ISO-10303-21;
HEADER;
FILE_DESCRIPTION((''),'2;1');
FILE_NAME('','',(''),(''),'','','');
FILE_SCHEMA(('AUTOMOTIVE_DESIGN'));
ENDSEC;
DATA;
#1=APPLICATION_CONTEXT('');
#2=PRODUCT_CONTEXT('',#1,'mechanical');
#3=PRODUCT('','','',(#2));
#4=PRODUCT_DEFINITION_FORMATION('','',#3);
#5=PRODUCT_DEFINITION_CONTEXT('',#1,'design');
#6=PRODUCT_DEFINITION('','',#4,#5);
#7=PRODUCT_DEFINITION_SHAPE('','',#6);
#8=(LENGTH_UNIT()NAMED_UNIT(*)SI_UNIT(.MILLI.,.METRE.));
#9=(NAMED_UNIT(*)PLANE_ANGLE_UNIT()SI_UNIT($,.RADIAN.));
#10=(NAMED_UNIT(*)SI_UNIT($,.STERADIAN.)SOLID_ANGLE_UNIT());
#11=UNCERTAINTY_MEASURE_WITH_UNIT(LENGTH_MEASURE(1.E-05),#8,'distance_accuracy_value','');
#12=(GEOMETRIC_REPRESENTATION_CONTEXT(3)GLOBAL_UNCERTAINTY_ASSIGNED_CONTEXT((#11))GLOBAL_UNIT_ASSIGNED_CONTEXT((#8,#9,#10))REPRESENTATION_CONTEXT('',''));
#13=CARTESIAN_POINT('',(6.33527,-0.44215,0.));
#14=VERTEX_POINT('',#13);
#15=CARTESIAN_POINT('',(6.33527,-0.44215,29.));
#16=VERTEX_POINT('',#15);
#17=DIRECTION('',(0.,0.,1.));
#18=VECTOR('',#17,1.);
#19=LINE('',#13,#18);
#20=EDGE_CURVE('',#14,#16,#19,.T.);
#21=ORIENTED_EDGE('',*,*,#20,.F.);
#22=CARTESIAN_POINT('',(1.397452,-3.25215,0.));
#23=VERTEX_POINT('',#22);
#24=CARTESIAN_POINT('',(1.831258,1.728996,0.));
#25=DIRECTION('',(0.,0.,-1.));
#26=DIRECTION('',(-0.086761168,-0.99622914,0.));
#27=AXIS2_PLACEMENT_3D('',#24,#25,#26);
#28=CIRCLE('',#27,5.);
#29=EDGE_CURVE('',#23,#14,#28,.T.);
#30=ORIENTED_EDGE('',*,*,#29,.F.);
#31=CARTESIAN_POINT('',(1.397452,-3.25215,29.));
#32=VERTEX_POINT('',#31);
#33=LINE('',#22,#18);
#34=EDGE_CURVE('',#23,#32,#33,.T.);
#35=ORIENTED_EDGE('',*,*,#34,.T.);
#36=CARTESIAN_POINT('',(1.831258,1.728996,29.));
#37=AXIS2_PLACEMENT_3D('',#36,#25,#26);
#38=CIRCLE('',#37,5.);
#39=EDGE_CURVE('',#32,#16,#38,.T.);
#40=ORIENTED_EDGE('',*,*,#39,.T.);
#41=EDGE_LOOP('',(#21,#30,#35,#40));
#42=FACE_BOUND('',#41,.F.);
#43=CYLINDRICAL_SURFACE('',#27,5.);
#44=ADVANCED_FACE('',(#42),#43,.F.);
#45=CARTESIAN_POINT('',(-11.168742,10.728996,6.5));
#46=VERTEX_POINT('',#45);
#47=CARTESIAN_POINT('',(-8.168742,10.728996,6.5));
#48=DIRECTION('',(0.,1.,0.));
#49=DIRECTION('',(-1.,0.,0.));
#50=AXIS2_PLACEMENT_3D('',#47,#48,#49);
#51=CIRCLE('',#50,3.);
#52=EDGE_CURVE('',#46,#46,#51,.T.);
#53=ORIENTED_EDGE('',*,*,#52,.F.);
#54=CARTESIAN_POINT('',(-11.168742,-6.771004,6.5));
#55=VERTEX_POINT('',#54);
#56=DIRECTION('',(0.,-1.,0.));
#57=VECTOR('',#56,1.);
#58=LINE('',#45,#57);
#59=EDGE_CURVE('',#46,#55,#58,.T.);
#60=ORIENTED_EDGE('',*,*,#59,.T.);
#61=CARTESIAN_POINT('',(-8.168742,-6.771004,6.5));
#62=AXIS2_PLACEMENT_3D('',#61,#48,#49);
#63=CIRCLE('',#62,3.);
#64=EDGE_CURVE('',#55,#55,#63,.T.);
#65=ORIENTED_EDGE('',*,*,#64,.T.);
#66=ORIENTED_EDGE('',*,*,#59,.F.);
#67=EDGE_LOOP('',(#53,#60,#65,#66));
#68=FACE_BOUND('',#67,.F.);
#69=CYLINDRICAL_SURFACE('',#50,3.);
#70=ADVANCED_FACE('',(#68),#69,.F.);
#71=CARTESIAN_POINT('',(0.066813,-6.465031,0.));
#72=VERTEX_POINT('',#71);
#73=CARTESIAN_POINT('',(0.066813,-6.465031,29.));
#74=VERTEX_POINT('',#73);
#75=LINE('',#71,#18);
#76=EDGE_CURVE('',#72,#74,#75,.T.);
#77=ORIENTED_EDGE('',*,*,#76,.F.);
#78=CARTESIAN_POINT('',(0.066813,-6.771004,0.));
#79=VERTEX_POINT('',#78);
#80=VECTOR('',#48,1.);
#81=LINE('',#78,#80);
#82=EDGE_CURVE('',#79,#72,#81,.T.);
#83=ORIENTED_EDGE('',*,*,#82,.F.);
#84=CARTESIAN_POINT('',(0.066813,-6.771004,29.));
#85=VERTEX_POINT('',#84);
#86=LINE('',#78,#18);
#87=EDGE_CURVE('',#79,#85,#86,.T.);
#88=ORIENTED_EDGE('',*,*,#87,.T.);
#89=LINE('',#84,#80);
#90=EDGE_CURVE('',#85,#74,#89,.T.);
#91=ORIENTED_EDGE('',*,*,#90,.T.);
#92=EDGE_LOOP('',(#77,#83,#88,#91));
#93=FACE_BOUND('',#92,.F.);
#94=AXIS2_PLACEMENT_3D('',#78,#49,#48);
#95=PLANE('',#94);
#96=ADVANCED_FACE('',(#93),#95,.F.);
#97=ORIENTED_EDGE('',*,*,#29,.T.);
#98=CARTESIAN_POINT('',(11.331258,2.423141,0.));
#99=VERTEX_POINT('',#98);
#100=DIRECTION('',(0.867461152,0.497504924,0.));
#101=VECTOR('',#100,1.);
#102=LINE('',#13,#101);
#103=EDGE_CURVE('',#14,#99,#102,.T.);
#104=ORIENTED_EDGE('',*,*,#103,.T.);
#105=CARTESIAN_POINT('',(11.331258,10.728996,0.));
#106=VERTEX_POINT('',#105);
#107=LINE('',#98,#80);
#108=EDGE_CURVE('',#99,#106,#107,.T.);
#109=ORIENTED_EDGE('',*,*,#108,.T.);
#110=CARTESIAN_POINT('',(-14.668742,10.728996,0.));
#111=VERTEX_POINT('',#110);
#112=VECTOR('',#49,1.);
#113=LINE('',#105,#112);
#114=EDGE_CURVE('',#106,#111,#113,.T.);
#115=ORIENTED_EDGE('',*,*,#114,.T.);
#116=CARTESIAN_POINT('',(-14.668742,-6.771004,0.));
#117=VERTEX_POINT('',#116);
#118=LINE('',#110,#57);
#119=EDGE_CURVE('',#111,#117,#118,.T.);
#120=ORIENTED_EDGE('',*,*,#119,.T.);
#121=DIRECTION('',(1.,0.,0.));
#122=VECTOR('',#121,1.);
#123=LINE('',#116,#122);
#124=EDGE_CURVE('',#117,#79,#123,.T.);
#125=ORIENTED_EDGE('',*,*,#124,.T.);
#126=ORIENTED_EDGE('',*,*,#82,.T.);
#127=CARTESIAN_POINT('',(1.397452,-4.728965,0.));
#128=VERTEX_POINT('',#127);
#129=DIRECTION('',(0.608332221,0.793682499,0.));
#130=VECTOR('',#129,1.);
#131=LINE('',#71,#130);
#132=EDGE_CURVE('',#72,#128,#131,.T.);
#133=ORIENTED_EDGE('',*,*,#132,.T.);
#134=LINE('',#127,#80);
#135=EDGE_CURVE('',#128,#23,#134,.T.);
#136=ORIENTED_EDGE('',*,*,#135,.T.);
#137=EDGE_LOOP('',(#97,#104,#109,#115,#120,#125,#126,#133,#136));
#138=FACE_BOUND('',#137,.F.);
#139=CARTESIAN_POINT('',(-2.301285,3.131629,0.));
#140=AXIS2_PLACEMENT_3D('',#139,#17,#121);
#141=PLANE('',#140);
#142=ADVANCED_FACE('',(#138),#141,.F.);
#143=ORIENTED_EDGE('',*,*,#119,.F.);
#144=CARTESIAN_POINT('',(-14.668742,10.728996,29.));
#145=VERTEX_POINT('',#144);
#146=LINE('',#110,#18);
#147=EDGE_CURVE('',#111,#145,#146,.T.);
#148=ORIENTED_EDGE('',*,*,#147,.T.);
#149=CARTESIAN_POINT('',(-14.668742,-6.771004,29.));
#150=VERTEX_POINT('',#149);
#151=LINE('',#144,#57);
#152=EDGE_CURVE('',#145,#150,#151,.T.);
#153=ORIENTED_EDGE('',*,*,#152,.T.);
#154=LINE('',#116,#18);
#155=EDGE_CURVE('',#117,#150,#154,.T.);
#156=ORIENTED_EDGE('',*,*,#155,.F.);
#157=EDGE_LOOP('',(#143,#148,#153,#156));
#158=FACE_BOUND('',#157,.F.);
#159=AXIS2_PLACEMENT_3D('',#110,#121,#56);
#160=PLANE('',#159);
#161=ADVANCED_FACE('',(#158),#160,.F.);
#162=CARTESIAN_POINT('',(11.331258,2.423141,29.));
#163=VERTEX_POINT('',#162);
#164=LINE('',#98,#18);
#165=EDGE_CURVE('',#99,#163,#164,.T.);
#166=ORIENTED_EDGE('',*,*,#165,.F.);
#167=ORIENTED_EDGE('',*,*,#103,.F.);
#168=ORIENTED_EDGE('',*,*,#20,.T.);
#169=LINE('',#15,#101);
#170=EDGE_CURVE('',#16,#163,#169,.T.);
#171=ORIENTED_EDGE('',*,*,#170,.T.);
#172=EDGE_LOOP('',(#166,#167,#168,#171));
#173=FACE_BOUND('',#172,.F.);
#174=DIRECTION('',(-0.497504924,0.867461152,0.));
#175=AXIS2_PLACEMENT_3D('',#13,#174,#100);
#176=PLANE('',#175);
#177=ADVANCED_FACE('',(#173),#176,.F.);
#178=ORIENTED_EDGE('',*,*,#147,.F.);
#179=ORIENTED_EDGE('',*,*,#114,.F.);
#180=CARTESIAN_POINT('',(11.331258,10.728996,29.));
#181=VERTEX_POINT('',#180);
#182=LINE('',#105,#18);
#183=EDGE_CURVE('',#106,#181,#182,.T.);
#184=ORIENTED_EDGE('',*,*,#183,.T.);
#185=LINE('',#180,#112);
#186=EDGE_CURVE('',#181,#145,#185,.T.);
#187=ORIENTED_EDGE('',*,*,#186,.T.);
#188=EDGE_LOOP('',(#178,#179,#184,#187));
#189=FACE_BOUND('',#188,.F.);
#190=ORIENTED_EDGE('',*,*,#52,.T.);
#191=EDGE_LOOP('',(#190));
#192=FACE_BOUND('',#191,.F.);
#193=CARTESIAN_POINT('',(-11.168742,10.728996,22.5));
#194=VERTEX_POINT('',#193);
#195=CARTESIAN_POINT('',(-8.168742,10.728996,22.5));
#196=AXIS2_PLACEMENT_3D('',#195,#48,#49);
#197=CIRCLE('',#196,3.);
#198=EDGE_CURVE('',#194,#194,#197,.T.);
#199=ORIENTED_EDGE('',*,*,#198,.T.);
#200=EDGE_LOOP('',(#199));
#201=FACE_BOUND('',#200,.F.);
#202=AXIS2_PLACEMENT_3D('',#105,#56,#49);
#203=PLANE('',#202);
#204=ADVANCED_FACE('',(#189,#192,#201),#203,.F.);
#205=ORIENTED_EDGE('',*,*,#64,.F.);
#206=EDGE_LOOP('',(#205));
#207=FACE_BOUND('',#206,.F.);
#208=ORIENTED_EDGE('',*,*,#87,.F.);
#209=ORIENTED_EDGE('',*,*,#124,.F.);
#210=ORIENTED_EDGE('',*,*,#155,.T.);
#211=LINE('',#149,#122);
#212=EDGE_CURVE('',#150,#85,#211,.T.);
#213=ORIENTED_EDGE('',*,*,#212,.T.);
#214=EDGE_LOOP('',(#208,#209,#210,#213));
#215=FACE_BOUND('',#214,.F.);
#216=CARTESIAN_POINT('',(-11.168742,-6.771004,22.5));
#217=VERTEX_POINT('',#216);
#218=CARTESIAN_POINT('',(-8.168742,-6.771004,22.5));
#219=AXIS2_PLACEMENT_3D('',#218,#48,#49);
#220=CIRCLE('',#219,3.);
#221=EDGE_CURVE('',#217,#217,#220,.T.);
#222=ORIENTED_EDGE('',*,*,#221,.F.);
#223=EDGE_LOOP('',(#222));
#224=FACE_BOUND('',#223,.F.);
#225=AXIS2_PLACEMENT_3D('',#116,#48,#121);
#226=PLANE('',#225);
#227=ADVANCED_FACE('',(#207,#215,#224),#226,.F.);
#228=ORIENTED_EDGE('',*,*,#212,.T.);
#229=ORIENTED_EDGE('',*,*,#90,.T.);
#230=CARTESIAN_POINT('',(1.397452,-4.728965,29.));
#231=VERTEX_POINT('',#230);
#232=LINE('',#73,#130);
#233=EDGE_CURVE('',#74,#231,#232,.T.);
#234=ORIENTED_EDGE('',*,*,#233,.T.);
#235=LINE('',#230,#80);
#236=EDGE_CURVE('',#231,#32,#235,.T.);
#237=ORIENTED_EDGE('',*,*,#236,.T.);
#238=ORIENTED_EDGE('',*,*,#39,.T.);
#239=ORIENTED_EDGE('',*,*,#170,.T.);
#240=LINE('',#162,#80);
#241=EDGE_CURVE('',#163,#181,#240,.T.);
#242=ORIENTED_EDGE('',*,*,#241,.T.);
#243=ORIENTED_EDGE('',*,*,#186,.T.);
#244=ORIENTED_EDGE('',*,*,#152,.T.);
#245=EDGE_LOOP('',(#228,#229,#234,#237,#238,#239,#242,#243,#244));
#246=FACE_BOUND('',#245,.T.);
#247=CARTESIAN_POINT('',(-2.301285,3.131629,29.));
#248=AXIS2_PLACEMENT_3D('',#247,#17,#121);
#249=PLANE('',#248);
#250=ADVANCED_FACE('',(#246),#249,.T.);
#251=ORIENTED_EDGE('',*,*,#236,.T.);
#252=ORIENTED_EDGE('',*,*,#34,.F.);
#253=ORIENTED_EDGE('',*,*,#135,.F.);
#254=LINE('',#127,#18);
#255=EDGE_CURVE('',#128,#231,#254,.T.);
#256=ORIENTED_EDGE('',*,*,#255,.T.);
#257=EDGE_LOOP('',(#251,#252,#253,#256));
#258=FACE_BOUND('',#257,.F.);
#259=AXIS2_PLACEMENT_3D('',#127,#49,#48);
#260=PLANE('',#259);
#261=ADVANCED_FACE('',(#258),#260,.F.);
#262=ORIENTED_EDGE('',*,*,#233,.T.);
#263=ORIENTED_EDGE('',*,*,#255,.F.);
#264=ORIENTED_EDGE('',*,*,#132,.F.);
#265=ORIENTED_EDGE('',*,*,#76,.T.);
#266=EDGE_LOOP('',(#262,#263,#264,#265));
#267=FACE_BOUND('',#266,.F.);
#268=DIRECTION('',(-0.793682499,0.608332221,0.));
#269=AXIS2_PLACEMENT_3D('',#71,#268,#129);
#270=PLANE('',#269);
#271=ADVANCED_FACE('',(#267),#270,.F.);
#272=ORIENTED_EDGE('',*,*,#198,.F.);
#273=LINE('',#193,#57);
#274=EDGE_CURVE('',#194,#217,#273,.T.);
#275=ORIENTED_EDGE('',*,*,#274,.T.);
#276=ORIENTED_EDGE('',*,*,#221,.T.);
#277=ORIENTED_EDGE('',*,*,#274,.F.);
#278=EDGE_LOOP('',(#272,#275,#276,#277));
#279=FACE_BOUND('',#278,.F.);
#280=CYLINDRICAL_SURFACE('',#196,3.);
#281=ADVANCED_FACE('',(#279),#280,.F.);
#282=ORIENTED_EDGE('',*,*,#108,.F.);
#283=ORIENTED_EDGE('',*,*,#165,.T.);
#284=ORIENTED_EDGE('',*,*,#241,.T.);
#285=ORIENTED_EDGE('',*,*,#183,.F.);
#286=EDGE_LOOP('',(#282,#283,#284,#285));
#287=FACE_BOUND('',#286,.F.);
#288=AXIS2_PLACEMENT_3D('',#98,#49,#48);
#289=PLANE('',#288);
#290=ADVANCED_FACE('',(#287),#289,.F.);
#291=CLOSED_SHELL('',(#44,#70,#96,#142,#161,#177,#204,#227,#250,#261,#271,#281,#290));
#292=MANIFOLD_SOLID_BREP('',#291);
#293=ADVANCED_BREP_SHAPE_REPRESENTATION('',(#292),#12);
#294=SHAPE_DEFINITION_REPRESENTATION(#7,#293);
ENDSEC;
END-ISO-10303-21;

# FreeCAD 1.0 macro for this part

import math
import FreeCAD as App
import Part
import Sketcher

V = App.Vector

doc = App.newDocument("Part")
params = doc.addObject("Spreadsheet::Sheet", "Params")
for row, (alias, value) in enumerate([
    ("sketch1_radius", "5 mm"),
    ("sketch1_width", "26 mm"),
    ("sketch1_height", "17.5 mm"),
    ("pad1_length", "29 mm"),
    ("sketch2_diameter", "6 mm"),
], start=1):
    params.set(f"A{row}", alias)
    params.set(f"B{row}", "=" + value)
    params.setAlias(f"B{row}", alias)

body = doc.addObject("PartDesign::Body", "Body")

sketch1 = doc.addObject("Sketcher::SketchObject", "Sketch")
body.addObject(sketch1)
sketch1.AttachmentSupport = (doc.XY_Plane, [""])
sketch1.MapMode = "FlatFace"
sketch1.addGeometry([
    Part.ArcOfCircle(Part.Circle(V(1.831258, 1.728996, 0), V(0, 0, 1), 5), math.radians(-25.736252), math.radians(265.022693)),
    Part.LineSegment(V(6.33527, -0.44215, 0), V(11.331258, 2.423141, 0)),
    Part.LineSegment(V(11.331258, 2.423141, 0), V(11.331258, 10.728996, 0)),
    Part.LineSegment(V(11.331258, 10.728996, 0), V(-14.668742, 10.728996, 0)),
    Part.LineSegment(V(-14.668742, 10.728996, 0), V(-14.668742, -6.771004, 0)),
    Part.LineSegment(V(-14.668742, -6.771004, 0), V(0.066813, -6.771004, 0)),
    Part.LineSegment(V(0.066813, -6.771004, 0), V(0.066813, -6.465031, 0)),
    Part.LineSegment(V(0.066813, -6.465031, 0), V(1.397452, -4.728965, 0)),
    Part.LineSegment(V(1.397452, -4.728965, 0), V(1.397452, -3.25215, 0)),
], False)
sketch1.addConstraint([
    Sketcher.Constraint("Coincident", 0, 1, 1, 1),
    Sketcher.Constraint("Coincident", 1, 2, 2, 1),
    Sketcher.Constraint("Coincident", 2, 2, 3, 1),
    Sketcher.Constraint("Coincident", 3, 2, 4, 1),
    Sketcher.Constraint("Coincident", 4, 2, 5, 1),
    Sketcher.Constraint("Coincident", 5, 2, 6, 1),
    Sketcher.Constraint("Coincident", 6, 2, 7, 1),
    Sketcher.Constraint("Coincident", 7, 2, 8, 1),
    Sketcher.Constraint("Coincident", 8, 2, 0, 2),
    Sketcher.Constraint("Vertical", 2),
    Sketcher.Constraint("Horizontal", 3),
    Sketcher.Constraint("Vertical", 4),
    Sketcher.Constraint("Horizontal", 5),
    Sketcher.Constraint("Vertical", 6),
    Sketcher.Constraint("Vertical", 8),
    Sketcher.Constraint("Radius", 0, 5.0),
    Sketcher.Constraint("DistanceX", 3, 2, 3, 1, 26.0),
    Sketcher.Constraint("DistanceY", 4, 2, 4, 1, 17.5),
    Sketcher.Constraint("DistanceY", 0, 3, 2, 2, 9.0),
    Sketcher.Constraint("DistanceX", 0, 3, 1, 2, 9.5),
    Sketcher.Constraint("DistanceY", 8, 2, 0, 1, 2.81),
    Sketcher.Constraint("Distance", 1, 5.759322),
    Sketcher.Constraint("DistanceX", 5, 1, 5, 2, 14.735555),
    Sketcher.Constraint("DistanceY", 2, 1, 2, 2, 8.305855),
    Sketcher.Constraint("DistanceY", 6, 1, 6, 2, 0.305973),
    Sketcher.Constraint("DistanceY", 8, 1, 8, 2, 1.476815),
    Sketcher.Constraint("DistanceX", -1, 1, 0, 1, 6.33527),
    Sketcher.Constraint("DistanceY", 0, 1, -1, 1, 0.44215),
])
sketch1.setExpression("Constraints[15]", "Params.sketch1_radius")
sketch1.setExpression("Constraints[16]", "Params.sketch1_width")
sketch1.setExpression("Constraints[17]", "Params.sketch1_height")
pad1 = doc.addObject("PartDesign::Pad", "Pad")
body.addObject(pad1)
pad1.Profile = sketch1
pad1.setExpression("Length", "Params.pad1_length")

sketch2 = doc.addObject("Sketcher::SketchObject", "Sketch001")
body.addObject(sketch2)
sketch2.AttachmentSupport = (doc.XZ_Plane, [""])
sketch2.MapMode = "FlatFace"
sketch2.AttachmentOffset = App.Placement(V(0, 0, -10.728996), App.Rotation())
sketch2.addGeometry([
    Part.Circle(V(-8.168742, 22.5, 0), V(0, 0, 1), 3),
    Part.Circle(V(-8.168742, 6.5, 0), V(0, 0, 1), 3),
], False)
sketch2.addConstraint([
    Sketcher.Constraint("Equal", 0, 1),
    Sketcher.Constraint("Vertical", 0, 3, 1, 3),
    Sketcher.Constraint("Diameter", 0, 6.0),
    Sketcher.Constraint("DistanceY", 1, 3, 0, 3, 16.0),
    Sketcher.Constraint("DistanceY", -1, 1, 0, 3, 22.5),
    Sketcher.Constraint("DistanceX", 0, 3, -1, 1, 8.168742),
])
sketch2.setExpression("Constraints[2]", "Params.sketch2_diameter")
pocket1 = doc.addObject("PartDesign::Pocket", "Pocket")
body.addObject(pocket1)
pocket1.Profile = sketch2
pocket1.Type = "ThroughAll"
pocket1.Reversed = True

doc.recompute()
